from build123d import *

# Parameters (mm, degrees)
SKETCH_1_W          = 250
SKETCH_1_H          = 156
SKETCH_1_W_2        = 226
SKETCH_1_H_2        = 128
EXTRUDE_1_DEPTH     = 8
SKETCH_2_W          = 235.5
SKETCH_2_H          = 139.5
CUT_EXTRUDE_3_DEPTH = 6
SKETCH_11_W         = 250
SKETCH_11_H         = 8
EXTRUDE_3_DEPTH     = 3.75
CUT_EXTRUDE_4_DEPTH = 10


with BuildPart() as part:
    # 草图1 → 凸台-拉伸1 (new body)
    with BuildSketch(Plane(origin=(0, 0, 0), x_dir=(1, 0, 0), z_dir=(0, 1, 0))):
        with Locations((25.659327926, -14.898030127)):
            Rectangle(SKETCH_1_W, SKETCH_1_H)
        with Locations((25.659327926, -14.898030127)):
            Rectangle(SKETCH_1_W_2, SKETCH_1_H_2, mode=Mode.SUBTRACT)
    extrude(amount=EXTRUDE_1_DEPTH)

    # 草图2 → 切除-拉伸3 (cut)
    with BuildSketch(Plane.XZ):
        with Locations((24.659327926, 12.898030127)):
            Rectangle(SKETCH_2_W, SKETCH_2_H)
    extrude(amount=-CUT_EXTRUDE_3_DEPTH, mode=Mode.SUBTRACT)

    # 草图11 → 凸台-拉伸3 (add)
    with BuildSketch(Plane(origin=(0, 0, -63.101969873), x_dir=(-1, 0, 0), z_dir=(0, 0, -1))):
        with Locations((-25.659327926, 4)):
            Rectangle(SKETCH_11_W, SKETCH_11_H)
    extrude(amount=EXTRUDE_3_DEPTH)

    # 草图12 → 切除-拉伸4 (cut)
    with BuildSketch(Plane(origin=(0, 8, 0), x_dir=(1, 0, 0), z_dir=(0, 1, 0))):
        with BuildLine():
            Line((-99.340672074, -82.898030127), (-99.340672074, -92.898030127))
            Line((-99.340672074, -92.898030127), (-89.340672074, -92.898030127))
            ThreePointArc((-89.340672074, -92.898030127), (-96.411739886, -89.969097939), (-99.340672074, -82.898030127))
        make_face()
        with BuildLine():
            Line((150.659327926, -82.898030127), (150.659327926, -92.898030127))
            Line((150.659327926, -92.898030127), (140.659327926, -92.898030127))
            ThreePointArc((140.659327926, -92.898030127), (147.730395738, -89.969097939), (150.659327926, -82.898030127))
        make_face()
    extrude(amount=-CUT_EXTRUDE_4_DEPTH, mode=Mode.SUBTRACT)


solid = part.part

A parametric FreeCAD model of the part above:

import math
import FreeCAD as App
import Part
import Sketcher

V = App.Vector


def add_polygon(sketch, points):
    """Adds a closed chain of lines whose ends are joined by coincident constraints."""
    first, n = sketch.GeometryCount, len(points)
    for a, b in zip(points, points[1:] + points[:1]):
        sketch.addGeometry(Part.LineSegment(App.Vector(*a, 0), App.Vector(*b, 0)), False)
    for i in range(n):
        sketch.addConstraint(Sketcher.Constraint("Coincident", first + i, 2, first + (i + 1) % n, 1))

doc = App.newDocument("Part")
body = doc.addObject("PartDesign::Body", "Body")

sketch1 = doc.addObject("Sketcher::SketchObject", "Sketch")
body.addObject(sketch1)
sketch1.AttachmentSupport = (doc.XZ_Plane, [""])
sketch1.MapMode = "FlatFace"
add_polygon(sketch1, [(-99.340672, -63.10197), (-99.340672, 92.89803), (150.659328, 92.89803), (150.659328, -63.10197)])
add_polygon(sketch1, [(138.659328, 78.89803), (-87.340672, 78.89803), (-87.340672, -49.10197), (138.659328, -49.10197)])
sketch1.addConstraint([
    Sketcher.Constraint("Vertical", 0),
    Sketcher.Constraint("Horizontal", 1),
    Sketcher.Constraint("Vertical", 2),
    Sketcher.Constraint("Horizontal", 3),
    Sketcher.Constraint("Horizontal", 4),
    Sketcher.Constraint("Vertical", 5),
    Sketcher.Constraint("Horizontal", 6),
    Sketcher.Constraint("Vertical", 7),
    Sketcher.Constraint("DistanceX", 1, 1, 1, 2, 250.0),
    Sketcher.Constraint("DistanceX", 4, 2, 4, 1, 226.0),
    Sketcher.Constraint("DistanceY", 0, 1, 0, 2, 156.0),
    Sketcher.Constraint("DistanceY", 5, 2, 5, 1, 128.0),
    Sketcher.Constraint("DistanceX", 0, 2, 4, 2, 12.0),
    Sketcher.Constraint("DistanceY", 4, 2, 0, 2, 14.0),
    Sketcher.Constraint("DistanceY", -1, 1, 0, 2, 92.89803),
    Sketcher.Constraint("DistanceX", 0, 2, -1, 1, 99.340672),
])
pad1 = doc.addObject("PartDesign::Pad", "Pad")
body.addObject(pad1)
pad1.Profile = sketch1
pad1.Length = 8
pad1.Reversed = True

sketch2 = doc.addObject("Sketcher::SketchObject", "Sketch001")
body.addObject(sketch2)
sketch2.AttachmentSupport = (doc.XZ_Plane, [""])
sketch2.MapMode = "FlatFace"
add_polygon(sketch2, [(-93.090672, 82.64803), (-93.090672, -56.85197), (142.409328, -56.85197), (142.409328, 82.64803)])
sketch2.addConstraint([
    Sketcher.Constraint("Vertical", 0),
    Sketcher.Constraint("Horizontal", 1),
    Sketcher.Constraint("Vertical", 2),
    Sketcher.Constraint("Horizontal", 3),
    Sketcher.Constraint("DistanceX", 1, 1, 1, 2, 235.5),
    Sketcher.Constraint("DistanceY", 0, 2, 0, 1, 139.5),
    Sketcher.Constraint("DistanceY", 0, 2, -1, 1, 56.85197),
    Sketcher.Constraint("DistanceX", 0, 2, -1, 1, 93.090672),
])
pocket1 = doc.addObject("PartDesign::Pocket", "Pocket")
body.addObject(pocket1)
pocket1.Profile = sketch2
pocket1.Length = 6

sketch3 = doc.addObject("Sketcher::SketchObject", "Sketch002")
body.addObject(sketch3)
sketch3.AttachmentSupport = (doc.XY_Plane, [""])
sketch3.MapMode = "FlatFace"
sketch3.AttachmentOffset = App.Placement(V(0, 0, -63.10197), App.Rotation())
add_polygon(sketch3, [(150.659328, 8), (150.659328, 0), (-99.340672, 0), (-99.340672, 8)])
sketch3.addConstraint([
    Sketcher.Constraint("Vertical", 0),
    Sketcher.Constraint("Horizontal", 1),
    Sketcher.Constraint("Vertical", 2),
    Sketcher.Constraint("Horizontal", 3),
    Sketcher.Constraint("PointOnObject", 0, 2, -1),
    Sketcher.Constraint("DistanceX", 1, 2, 1, 1, 250.0),
    Sketcher.Constraint("DistanceY", 0, 2, 0, 1, 8.0),
    Sketcher.Constraint("DistanceX", -1, 1, 0, 2, 150.659328),
])
pad2 = doc.addObject("PartDesign::Pad", "Pad001")
body.addObject(pad2)
pad2.Profile = sketch3
pad2.Length = 3.75
pad2.Reversed = True

sketch4 = doc.addObject("Sketcher::SketchObject", "Sketch003")
body.addObject(sketch4)
sketch4.AttachmentSupport = (doc.XZ_Plane, [""])
sketch4.MapMode = "FlatFace"
sketch4.AttachmentOffset = App.Placement(V(0, 0, -8), App.Rotation())
sketch4.addGeometry([
    Part.LineSegment(V(-99.340672, 82.89803, 0), V(-99.340672, 92.89803, 0)),
    Part.LineSegment(V(-99.340672, 92.89803, 0), V(-89.340672, 92.89803, 0)),
    Part.ArcOfCircle(Part.Circle(V(-89.340672, 82.89803, 0), V(0, 0, 1), 10), math.radians(90), math.radians(180)),
    Part.LineSegment(V(150.659328, 92.89803, 0), V(150.659328, 82.89803, 0)),
    Part.ArcOfCircle(Part.Circle(V(140.659328, 82.89803, 0), V(0, 0, 1), 10), math.radians(0), math.radians(90)),
    Part.LineSegment(V(140.659328, 92.89803, 0), V(150.659328, 92.89803, 0)),
], False)
sketch4.addConstraint([
    Sketcher.Constraint("Coincident", 0, 2, 1, 1),
    Sketcher.Constraint("Tangent", 1, 2, 2, 1),
    Sketcher.Constraint("Tangent", 2, 2, 0, 1),
    Sketcher.Constraint("Tangent", 3, 2, 4, 1),
    Sketcher.Constraint("Tangent", 4, 2, 5, 1),
    Sketcher.Constraint("Coincident", 5, 2, 3, 1),
    Sketcher.Constraint("Vertical", 0),
    Sketcher.Constraint("Horizontal", 1),
    Sketcher.Constraint("Vertical", 3),
    Sketcher.Constraint("Horizontal", 5),
    Sketcher.Constraint("Equal", 2, 4),
    Sketcher.Constraint("Horizontal", 2, 3, 4, 3),
    Sketcher.Constraint("Radius", 2, 10.0),
    Sketcher.Constraint("DistanceX", 2, 3, 4, 3, 230.0),
    Sketcher.Constraint("DistanceY", -1, 1, 2, 3, 82.89803),
    Sketcher.Constraint("DistanceX", 2, 3, -1, 1, 89.340672),
])
pocket2 = doc.addObject("PartDesign::Pocket", "Pocket001")
body.addObject(pocket2)
pocket2.Profile = sketch4
pocket2.Length = 10
pocket2.Reversed = True

doc.recompute()
